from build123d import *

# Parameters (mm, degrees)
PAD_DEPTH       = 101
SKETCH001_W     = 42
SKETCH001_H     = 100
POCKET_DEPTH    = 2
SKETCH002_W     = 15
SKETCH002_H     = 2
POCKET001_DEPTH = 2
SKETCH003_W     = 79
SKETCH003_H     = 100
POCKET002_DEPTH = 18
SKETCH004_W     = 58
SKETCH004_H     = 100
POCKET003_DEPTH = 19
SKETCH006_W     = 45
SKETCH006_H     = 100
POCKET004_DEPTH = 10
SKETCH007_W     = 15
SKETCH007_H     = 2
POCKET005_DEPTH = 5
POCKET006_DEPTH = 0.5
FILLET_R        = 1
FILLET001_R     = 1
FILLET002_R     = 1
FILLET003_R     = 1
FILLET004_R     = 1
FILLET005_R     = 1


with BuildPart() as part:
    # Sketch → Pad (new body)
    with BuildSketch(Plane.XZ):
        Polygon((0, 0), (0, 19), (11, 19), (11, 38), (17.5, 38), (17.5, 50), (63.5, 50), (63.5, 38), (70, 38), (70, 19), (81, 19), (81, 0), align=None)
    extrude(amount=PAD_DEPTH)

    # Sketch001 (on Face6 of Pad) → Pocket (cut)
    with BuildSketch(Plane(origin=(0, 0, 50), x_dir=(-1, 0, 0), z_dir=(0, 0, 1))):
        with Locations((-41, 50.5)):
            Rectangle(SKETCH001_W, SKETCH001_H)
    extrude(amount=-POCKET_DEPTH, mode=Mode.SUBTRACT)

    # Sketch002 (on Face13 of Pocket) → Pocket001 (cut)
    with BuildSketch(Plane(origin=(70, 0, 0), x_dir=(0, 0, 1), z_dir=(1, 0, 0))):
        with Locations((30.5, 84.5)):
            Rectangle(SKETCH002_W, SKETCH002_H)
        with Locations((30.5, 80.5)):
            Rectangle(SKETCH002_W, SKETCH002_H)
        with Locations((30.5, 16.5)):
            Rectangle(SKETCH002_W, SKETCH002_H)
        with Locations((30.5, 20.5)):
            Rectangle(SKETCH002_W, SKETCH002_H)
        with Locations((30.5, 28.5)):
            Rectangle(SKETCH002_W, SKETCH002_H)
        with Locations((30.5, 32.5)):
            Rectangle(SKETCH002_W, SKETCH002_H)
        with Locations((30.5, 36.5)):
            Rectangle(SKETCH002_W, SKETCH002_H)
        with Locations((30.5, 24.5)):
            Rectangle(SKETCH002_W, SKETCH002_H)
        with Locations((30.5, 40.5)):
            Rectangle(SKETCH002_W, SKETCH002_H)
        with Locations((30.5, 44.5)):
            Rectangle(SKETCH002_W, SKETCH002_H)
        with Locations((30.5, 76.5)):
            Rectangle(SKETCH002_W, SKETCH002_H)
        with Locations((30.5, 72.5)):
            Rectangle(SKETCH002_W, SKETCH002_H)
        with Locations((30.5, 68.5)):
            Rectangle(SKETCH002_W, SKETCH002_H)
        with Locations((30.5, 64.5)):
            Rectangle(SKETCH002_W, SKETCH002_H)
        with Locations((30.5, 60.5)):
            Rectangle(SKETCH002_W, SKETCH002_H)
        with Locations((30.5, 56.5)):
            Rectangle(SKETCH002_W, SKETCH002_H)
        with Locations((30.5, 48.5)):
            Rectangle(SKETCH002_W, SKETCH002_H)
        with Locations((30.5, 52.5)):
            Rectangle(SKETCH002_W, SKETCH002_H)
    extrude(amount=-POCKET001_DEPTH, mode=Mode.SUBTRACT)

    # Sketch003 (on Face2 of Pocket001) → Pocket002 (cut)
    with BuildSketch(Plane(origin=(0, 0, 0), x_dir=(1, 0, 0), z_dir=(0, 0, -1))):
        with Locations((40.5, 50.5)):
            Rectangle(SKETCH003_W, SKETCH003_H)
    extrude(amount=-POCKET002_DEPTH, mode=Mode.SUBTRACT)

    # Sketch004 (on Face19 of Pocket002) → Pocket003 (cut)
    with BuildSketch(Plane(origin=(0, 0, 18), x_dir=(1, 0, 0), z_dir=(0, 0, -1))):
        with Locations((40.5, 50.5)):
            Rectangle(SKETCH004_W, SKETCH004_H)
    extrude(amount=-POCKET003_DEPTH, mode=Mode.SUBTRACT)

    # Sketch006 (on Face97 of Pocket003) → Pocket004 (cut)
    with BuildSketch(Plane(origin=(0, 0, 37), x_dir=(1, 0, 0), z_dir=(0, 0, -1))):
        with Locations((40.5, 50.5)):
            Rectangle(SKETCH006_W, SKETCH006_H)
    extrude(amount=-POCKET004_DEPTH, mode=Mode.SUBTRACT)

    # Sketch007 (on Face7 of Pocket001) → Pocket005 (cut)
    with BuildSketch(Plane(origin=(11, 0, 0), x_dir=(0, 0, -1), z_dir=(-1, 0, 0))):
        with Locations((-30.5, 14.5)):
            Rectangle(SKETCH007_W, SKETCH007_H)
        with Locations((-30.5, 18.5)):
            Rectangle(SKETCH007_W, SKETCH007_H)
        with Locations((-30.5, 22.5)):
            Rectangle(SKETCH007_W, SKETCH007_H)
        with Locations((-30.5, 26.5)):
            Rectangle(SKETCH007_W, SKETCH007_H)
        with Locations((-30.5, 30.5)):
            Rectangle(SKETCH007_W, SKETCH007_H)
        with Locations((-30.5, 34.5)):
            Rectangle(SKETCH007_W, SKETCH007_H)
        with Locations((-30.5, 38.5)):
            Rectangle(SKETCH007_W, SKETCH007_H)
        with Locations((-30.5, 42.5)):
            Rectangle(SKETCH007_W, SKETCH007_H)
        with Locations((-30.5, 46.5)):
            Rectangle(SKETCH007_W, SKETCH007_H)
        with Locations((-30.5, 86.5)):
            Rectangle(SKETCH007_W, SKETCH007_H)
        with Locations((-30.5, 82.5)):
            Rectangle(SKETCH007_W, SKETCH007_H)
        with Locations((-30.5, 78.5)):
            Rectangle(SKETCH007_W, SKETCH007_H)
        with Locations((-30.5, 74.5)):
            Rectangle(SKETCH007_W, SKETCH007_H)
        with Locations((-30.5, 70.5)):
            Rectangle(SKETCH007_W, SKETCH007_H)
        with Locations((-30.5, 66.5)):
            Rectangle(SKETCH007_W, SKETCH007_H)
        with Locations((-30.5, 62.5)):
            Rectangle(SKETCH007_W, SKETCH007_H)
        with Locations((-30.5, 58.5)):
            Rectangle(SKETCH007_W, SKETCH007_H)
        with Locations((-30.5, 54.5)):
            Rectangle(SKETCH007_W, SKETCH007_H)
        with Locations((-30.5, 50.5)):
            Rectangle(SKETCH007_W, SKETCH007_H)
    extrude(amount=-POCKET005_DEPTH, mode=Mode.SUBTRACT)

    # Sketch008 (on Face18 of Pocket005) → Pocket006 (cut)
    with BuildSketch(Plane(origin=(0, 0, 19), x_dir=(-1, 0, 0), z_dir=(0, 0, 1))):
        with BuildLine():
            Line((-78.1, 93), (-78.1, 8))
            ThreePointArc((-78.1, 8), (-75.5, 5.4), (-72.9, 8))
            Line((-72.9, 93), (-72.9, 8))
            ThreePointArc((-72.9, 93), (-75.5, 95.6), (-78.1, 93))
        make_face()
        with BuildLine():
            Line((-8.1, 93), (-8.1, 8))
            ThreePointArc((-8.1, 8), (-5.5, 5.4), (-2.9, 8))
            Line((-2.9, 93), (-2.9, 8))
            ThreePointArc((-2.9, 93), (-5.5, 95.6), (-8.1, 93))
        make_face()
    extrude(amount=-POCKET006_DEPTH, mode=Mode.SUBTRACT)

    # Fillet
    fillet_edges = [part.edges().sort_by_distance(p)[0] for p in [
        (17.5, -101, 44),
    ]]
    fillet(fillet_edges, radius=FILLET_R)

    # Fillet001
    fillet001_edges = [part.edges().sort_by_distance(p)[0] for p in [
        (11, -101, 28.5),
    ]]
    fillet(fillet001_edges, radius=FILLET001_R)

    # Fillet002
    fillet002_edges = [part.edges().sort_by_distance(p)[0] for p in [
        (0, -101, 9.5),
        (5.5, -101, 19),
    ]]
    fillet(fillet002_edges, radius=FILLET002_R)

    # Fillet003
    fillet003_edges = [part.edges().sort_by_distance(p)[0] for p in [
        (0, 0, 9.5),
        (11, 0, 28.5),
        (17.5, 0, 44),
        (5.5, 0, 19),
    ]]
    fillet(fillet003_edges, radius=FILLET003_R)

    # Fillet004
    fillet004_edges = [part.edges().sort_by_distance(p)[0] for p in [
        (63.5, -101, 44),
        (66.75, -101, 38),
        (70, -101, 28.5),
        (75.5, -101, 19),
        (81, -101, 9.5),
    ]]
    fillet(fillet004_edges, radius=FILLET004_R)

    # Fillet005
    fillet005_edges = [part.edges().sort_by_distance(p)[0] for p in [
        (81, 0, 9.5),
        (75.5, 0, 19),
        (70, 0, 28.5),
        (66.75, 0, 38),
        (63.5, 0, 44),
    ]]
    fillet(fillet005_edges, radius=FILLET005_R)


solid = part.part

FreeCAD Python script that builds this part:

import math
import FreeCAD as App
import Part
import Sketcher


def edges_at(feature, points):
    """Names of the edges that pass closest to the given points."""
    edges = feature.Shape.Edges
    near = lambda p: min(range(len(edges)), key=lambda i: edges[i].distToShape(Part.Vertex(*p))[0])
    return sorted({f"Edge{near(p) + 1}" for p in points})

doc = App.newDocument("Part")
params = doc.addObject("Spreadsheet::Sheet", "Params")
for row, (alias, value) in enumerate([
    ("sketch1_width", "81 mm"),
    ("sketch1_width2", "11 mm"),
    ("sketch1_width3", "46 mm"),
    ("sketch1_height", "19 mm"),
    ("sketch1_height2", "12 mm"),
    ("pad1_length", "101 mm"),
    ("sketch2_width", "42 mm"),
    ("sketch2_height", "100 mm"),
    ("pocket1_length", "2 mm"),
    ("sketch3_width", "2 mm"),
    ("sketch3_height", "15 mm"),
    ("pocket2_length", "2 mm"),
    ("sketch4_width", "79 mm"),
    ("sketch4_height", "100 mm"),
    ("pocket3_length", "18 mm"),
    ("sketch5_width", "58 mm"),
    ("sketch5_height", "100 mm"),
    ("pocket4_length", "19 mm"),
    ("sketch6_width", "45 mm"),
    ("sketch6_height", "100 mm"),
    ("pocket5_length", "10 mm"),
    ("sketch7_width", "2 mm"),
    ("sketch7_height", "15 mm"),
    ("pocket6_length", "5 mm"),
    ("sketch8_radius", "2.6 mm"),
    ("sketch8_height", "85 mm"),
    ("pocket7_length", "0.5 mm"),
    ("fillet_radius", "1 mm"),
    ("fillet2_radius", "1 mm"),
    ("fillet3_radius", "1 mm"),
    ("fillet4_radius", "1 mm"),
    ("fillet5_radius", "1 mm"),
    ("fillet6_radius", "1 mm"),
], start=1):
    params.set(f"A{row}", alias)
    params.set(f"B{row}", "=" + value)
    params.setAlias(f"B{row}", alias)

body = doc.addObject("PartDesign::Body", "Body")

sketch1 = body.newObject("Sketcher::SketchObject", "Sketch")
sketch1.AttachmentSupport = (doc.getObject("XZ_Plane"), [""])
sketch1.MapMode = "FlatFace"
sketch1.addGeometry([
    Part.LineSegment(App.Vector(0, 19, 0), App.Vector(0, 0, 0)),
    Part.LineSegment(App.Vector(0, 0, 0), App.Vector(81, 0, 0)),
    Part.LineSegment(App.Vector(81, 0, 0), App.Vector(81, 19, 0)),
    Part.LineSegment(App.Vector(81, 19, 0), App.Vector(70, 19, 0)),
    Part.LineSegment(App.Vector(70, 19, 0), App.Vector(70, 38, 0)),
    Part.LineSegment(App.Vector(70, 38, 0), App.Vector(64, 38, 0)),
    Part.LineSegment(App.Vector(64, 38, 0), App.Vector(64, 50, 0)),
    Part.LineSegment(App.Vector(64, 50, 0), App.Vector(18, 50, 0)),
    Part.LineSegment(App.Vector(18, 50, 0), App.Vector(18, 38, 0)),
    Part.LineSegment(App.Vector(18, 38, 0), App.Vector(11, 38, 0)),
    Part.LineSegment(App.Vector(11, 38, 0), App.Vector(11, 19, 0)),
    Part.LineSegment(App.Vector(11, 19, 0), App.Vector(0, 19, 0)),
], False)
sketch1.addConstraint([
    Sketcher.Constraint("Coincident", 0, 2, 1, 1),
    Sketcher.Constraint("Coincident", 1, 2, 2, 1),
    Sketcher.Constraint("Coincident", 2, 2, 3, 1),
    Sketcher.Constraint("Coincident", 3, 2, 4, 1),
    Sketcher.Constraint("Coincident", 4, 2, 5, 1),
    Sketcher.Constraint("Coincident", 5, 2, 6, 1),
    Sketcher.Constraint("Coincident", 6, 2, 7, 1),
    Sketcher.Constraint("Coincident", 7, 2, 8, 1),
    Sketcher.Constraint("Coincident", 8, 2, 9, 1),
    Sketcher.Constraint("Coincident", 9, 2, 10, 1),
    Sketcher.Constraint("Coincident", 10, 2, 11, 1),
    Sketcher.Constraint("Coincident", 11, 2, 0, 1),
    Sketcher.Constraint("Vertical", 0),
    Sketcher.Constraint("Horizontal", 1),
    Sketcher.Constraint("Vertical", 2),
    Sketcher.Constraint("Horizontal", 3),
    Sketcher.Constraint("Vertical", 4),
    Sketcher.Constraint("Horizontal", 5),
    Sketcher.Constraint("Vertical", 6),
    Sketcher.Constraint("Horizontal", 7),
    Sketcher.Constraint("Vertical", 8),
    Sketcher.Constraint("Horizontal", 9),
    Sketcher.Constraint("Vertical", 10),
    Sketcher.Constraint("Horizontal", 11),
    Sketcher.Constraint("Coincident", 0, 2, -1, 1),
    Sketcher.Constraint("Horizontal", 5, 2, 8, 2),
    Sketcher.Constraint("Horizontal", 3, 2, 10, 2),
    Sketcher.Constraint("Equal", 5, 9),
    Sketcher.Constraint("Equal", 3, 11),
    Sketcher.Constraint("Equal", 2, 4),
    Sketcher.Constraint("DistanceX", 1, 1, 1, 2, 81.0),
    Sketcher.Constraint("DistanceX", 3, 2, 3, 1, 11.0),
    Sketcher.Constraint("DistanceX", 7, 2, 7, 1, 46.0),
    Sketcher.Constraint("DistanceY", 0, 2, 0, 1, 19.0),
    Sketcher.Constraint("DistanceY", 6, 1, 6, 2, 12.0),
])
sketch1.setExpression("Constraints[30]", "Params.sketch1_width")
sketch1.setExpression("Constraints[31]", "Params.sketch1_width2")
sketch1.setExpression("Constraints[32]", "Params.sketch1_width3")
sketch1.setExpression("Constraints[33]", "Params.sketch1_height")
sketch1.setExpression("Constraints[34]", "Params.sketch1_height2")
pad1 = body.newObject("PartDesign::Pad", "Pad")
pad1.Profile = sketch1
pad1.setExpression("Length", "Params.pad1_length")

sketch2 = body.newObject("Sketcher::SketchObject", "Sketch001")
sketch2.AttachmentSupport = (doc.getObject("XY_Plane"), [""])
sketch2.MapMode = "FlatFace"
sketch2.AttachmentOffset = App.Placement(App.Vector(0, 0, 50), App.Rotation())
sketch2.addGeometry([
    Part.LineSegment(App.Vector(62, -100, 0), App.Vector(62, 0, 0)),
    Part.LineSegment(App.Vector(62, 0, 0), App.Vector(20, 0, 0)),
    Part.LineSegment(App.Vector(20, 0, 0), App.Vector(20, -100, 0)),
    Part.LineSegment(App.Vector(20, -100, 0), App.Vector(62, -100, 0)),
], False)
sketch2.addConstraint([
    Sketcher.Constraint("Coincident", 0, 2, 1, 1),
    Sketcher.Constraint("Coincident", 1, 2, 2, 1),
    Sketcher.Constraint("Coincident", 2, 2, 3, 1),
    Sketcher.Constraint("Coincident", 3, 2, 0, 1),
    Sketcher.Constraint("Vertical", 0),
    Sketcher.Constraint("Horizontal", 1),
    Sketcher.Constraint("Vertical", 2),
    Sketcher.Constraint("Horizontal", 3),
    Sketcher.Constraint("DistanceX", 1, 2, 1, 1, 42.0),
    Sketcher.Constraint("DistanceY", 0, 1, 0, 2, 100.0),
    Sketcher.Constraint("DistanceX", -1, 1, 0, 2, 62.0),
    Sketcher.Constraint("DistanceY", 0, 2, -1, 1, 0.5),
])
sketch2.setExpression("Constraints[8]", "Params.sketch2_width")
sketch2.setExpression("Constraints[9]", "Params.sketch2_height")
pocket1 = body.newObject("PartDesign::Pocket", "Pocket")
pocket1.Profile = sketch2
pocket1.setExpression("Length", "Params.pocket1_length")

sketch3 = body.newObject("Sketcher::SketchObject", "Sketch002")
sketch3.AttachmentSupport = (doc.getObject("YZ_Plane"), [""])
sketch3.MapMode = "FlatFace"
sketch3.AttachmentOffset = App.Placement(App.Vector(0, 0, 70), App.Rotation())
sketch3.addGeometry([
    Part.LineSegment(App.Vector(-85.5, 23, 0), App.Vector(-83.5, 23, 0)),
    Part.LineSegment(App.Vector(-83.5, 23, 0), App.Vector(-83.5, 38, 0)),
    Part.LineSegment(App.Vector(-83.5, 38, 0), App.Vector(-85.5, 38, 0)),
    Part.LineSegment(App.Vector(-85.5, 38, 0), App.Vector(-85.5, 23, 0)),
    Part.LineSegment(App.Vector(-81.5, 23, 0), App.Vector(-79.5, 23, 0)),
    Part.LineSegment(App.Vector(-79.5, 23, 0), App.Vector(-79.5, 38, 0)),
    Part.LineSegment(App.Vector(-79.5, 38, 0), App.Vector(-81.5, 38, 0)),
    Part.LineSegment(App.Vector(-81.5, 38, 0), App.Vector(-81.5, 23, 0)),
    Part.LineSegment(App.Vector(-17.5, 23, 0), App.Vector(-15.5, 23, 0)),
    Part.LineSegment(App.Vector(-15.5, 23, 0), App.Vector(-15.5, 38, 0)),
    Part.LineSegment(App.Vector(-15.5, 38, 0), App.Vector(-17.5, 38, 0)),
    Part.LineSegment(App.Vector(-17.5, 38, 0), App.Vector(-17.5, 23, 0)),
    Part.LineSegment(App.Vector(-21.5, 23, 0), App.Vector(-19.5, 23, 0)),
    Part.LineSegment(App.Vector(-19.5, 23, 0), App.Vector(-19.5, 38, 0)),
    Part.LineSegment(App.Vector(-19.5, 38, 0), App.Vector(-21.5, 38, 0)),
    Part.LineSegment(App.Vector(-21.5, 38, 0), App.Vector(-21.5, 23, 0)),
    Part.LineSegment(App.Vector(-29.5, 23, 0), App.Vector(-27.5, 23, 0)),
    Part.LineSegment(App.Vector(-27.5, 23, 0), App.Vector(-27.5, 38, 0)),
    Part.LineSegment(App.Vector(-27.5, 38, 0), App.Vector(-29.5, 38, 0)),
    Part.LineSegment(App.Vector(-29.5, 38, 0), App.Vector(-29.5, 23, 0)),
    Part.LineSegment(App.Vector(-33.5, 23, 0), App.Vector(-31.5, 23, 0)),
    Part.LineSegment(App.Vector(-31.5, 23, 0), App.Vector(-31.5, 38, 0)),
    Part.LineSegment(App.Vector(-31.5, 38, 0), App.Vector(-33.5, 38, 0)),
    Part.LineSegment(App.Vector(-33.5, 38, 0), App.Vector(-33.5, 23, 0)),
    Part.LineSegment(App.Vector(-37.5, 23, 0), App.Vector(-35.5, 23, 0)),
    Part.LineSegment(App.Vector(-35.5, 23, 0), App.Vector(-35.5, 38, 0)),
    Part.LineSegment(App.Vector(-35.5, 38, 0), App.Vector(-37.5, 38, 0)),
    Part.LineSegment(App.Vector(-37.5, 38, 0), App.Vector(-37.5, 23, 0)),
    Part.LineSegment(App.Vector(-25.5, 23, 0), App.Vector(-23.5, 23, 0)),
    Part.LineSegment(App.Vector(-23.5, 23, 0), App.Vector(-23.5, 38, 0)),
    Part.LineSegment(App.Vector(-23.5, 38, 0), App.Vector(-25.5, 38, 0)),
    Part.LineSegment(App.Vector(-25.5, 38, 0), App.Vector(-25.5, 23, 0)),
    Part.LineSegment(App.Vector(-41.5, 23, 0), App.Vector(-39.5, 23, 0)),
    Part.LineSegment(App.Vector(-39.5, 23, 0), App.Vector(-39.5, 38, 0)),
    Part.LineSegment(App.Vector(-39.5, 38, 0), App.Vector(-41.5, 38, 0)),
    Part.LineSegment(App.Vector(-41.5, 38, 0), App.Vector(-41.5, 23, 0)),
    Part.LineSegment(App.Vector(-45.5, 23, 0), App.Vector(-43.5, 23, 0)),
    Part.LineSegment(App.Vector(-43.5, 23, 0), App.Vector(-43.5, 38, 0)),
    Part.LineSegment(App.Vector(-43.5, 38, 0), App.Vector(-45.5, 38, 0)),
    Part.LineSegment(App.Vector(-45.5, 38, 0), App.Vector(-45.5, 23, 0)),
    Part.LineSegment(App.Vector(-77.5, 23, 0), App.Vector(-75.5, 23, 0)),
    Part.LineSegment(App.Vector(-75.5, 23, 0), App.Vector(-75.5, 38, 0)),
    Part.LineSegment(App.Vector(-75.5, 38, 0), App.Vector(-77.5, 38, 0)),
    Part.LineSegment(App.Vector(-77.5, 38, 0), App.Vector(-77.5, 23, 0)),
    Part.LineSegment(App.Vector(-73.5, 23, 0), App.Vector(-71.5, 23, 0)),
    Part.LineSegment(App.Vector(-71.5, 23, 0), App.Vector(-71.5, 38, 0)),
    Part.LineSegment(App.Vector(-71.5, 38, 0), App.Vector(-73.5, 38, 0)),
    Part.LineSegment(App.Vector(-73.5, 38, 0), App.Vector(-73.5, 23, 0)),
    Part.LineSegment(App.Vector(-69.5, 23, 0), App.Vector(-67.5, 23, 0)),
    Part.LineSegment(App.Vector(-67.5, 23, 0), App.Vector(-67.5, 38, 0)),
    Part.LineSegment(App.Vector(-67.5, 38, 0), App.Vector(-69.5, 38, 0)),
    Part.LineSegment(App.Vector(-69.5, 38, 0), App.Vector(-69.5, 23, 0)),
    Part.LineSegment(App.Vector(-65.5, 23, 0), App.Vector(-63.5, 23, 0)),
    Part.LineSegment(App.Vector(-63.5, 23, 0), App.Vector(-63.5, 38, 0)),
    Part.LineSegment(App.Vector(-63.5, 38, 0), App.Vector(-65.5, 38, 0)),
    Part.LineSegment(App.Vector(-65.5, 38, 0), App.Vector(-65.5, 23, 0)),
    Part.LineSegment(App.Vector(-61.5, 23, 0), App.Vector(-59.5, 23, 0)),
    Part.LineSegment(App.Vector(-59.5, 23, 0), App.Vector(-59.5, 38, 0)),
    Part.LineSegment(App.Vector(-59.5, 38, 0), App.Vector(-61.5, 38, 0)),
    Part.LineSegment(App.Vector(-61.5, 38, 0), App.Vector(-61.5, 23, 0)),
    Part.LineSegment(App.Vector(-57.5, 23, 0), App.Vector(-55.5, 23, 0)),
    Part.LineSegment(App.Vector(-55.5, 23, 0), App.Vector(-55.5, 38, 0)),
    Part.LineSegment(App.Vector(-55.5, 38, 0), App.Vector(-57.5, 38, 0)),
    Part.LineSegment(App.Vector(-57.5, 38, 0), App.Vector(-57.5, 23, 0)),
    Part.LineSegment(App.Vector(-49.5, 23, 0), App.Vector(-47.5, 23, 0)),
    Part.LineSegment(App.Vector(-47.5, 23, 0), App.Vector(-47.5, 38, 0)),
    Part.LineSegment(App.Vector(-47.5, 38, 0), App.Vector(-49.5, 38, 0)),
    Part.LineSegment(App.Vector(-49.5, 38, 0), App.Vector(-49.5, 23, 0)),
    Part.LineSegment(App.Vector(-53.5, 23, 0), App.Vector(-51.5, 23, 0)),
    Part.LineSegment(App.Vector(-51.5, 23, 0), App.Vector(-51.5, 38, 0)),
    Part.LineSegment(App.Vector(-51.5, 38, 0), App.Vector(-53.5, 38, 0)),
    Part.LineSegment(App.Vector(-53.5, 38, 0), App.Vector(-53.5, 23, 0)),
], False)
sketch3.addConstraint([
    Sketcher.Constraint("Coincident", 0, 2, 1, 1),
    Sketcher.Constraint("Coincident", 1, 2, 2, 1),
    Sketcher.Constraint("Coincident", 2, 2, 3, 1),
    Sketcher.Constraint("Coincident", 3, 2, 0, 1),
    Sketcher.Constraint("Coincident", 4, 2, 5, 1),
    Sketcher.Constraint("Coincident", 5, 2, 6, 1),
    Sketcher.Constraint("Coincident", 6, 2, 7, 1),
    Sketcher.Constraint("Coincident", 7, 2, 4, 1),
    Sketcher.Constraint("Coincident", 8, 2, 9, 1),
    Sketcher.Constraint("Coincident", 9, 2, 10, 1),
    Sketcher.Constraint("Coincident", 10, 2, 11, 1),
    Sketcher.Constraint("Coincident", 11, 2, 8, 1),
    Sketcher.Constraint("Coincident", 12, 2, 13, 1),
    Sketcher.Constraint("Coincident", 13, 2, 14, 1),
    Sketcher.Constraint("Coincident", 14, 2, 15, 1),
    Sketcher.Constraint("Coincident", 15, 2, 12, 1),
    Sketcher.Constraint("Coincident", 16, 2, 17, 1),
    Sketcher.Constraint("Coincident", 17, 2, 18, 1),
    Sketcher.Constraint("Coincident", 18, 2, 19, 1),
    Sketcher.Constraint("Coincident", 19, 2, 16, 1),
    Sketcher.Constraint("Coincident", 20, 2, 21, 1),
    Sketcher.Constraint("Coincident", 21, 2, 22, 1),
    Sketcher.Constraint("Coincident", 22, 2, 23, 1),
    Sketcher.Constraint("Coincident", 23, 2, 20, 1),
    Sketcher.Constraint("Coincident", 24, 2, 25, 1),
    Sketcher.Constraint("Coincident", 25, 2, 26, 1),
    Sketcher.Constraint("Coincident", 26, 2, 27, 1),
    Sketcher.Constraint("Coincident", 27, 2, 24, 1),
    Sketcher.Constraint("Coincident", 28, 2, 29, 1),
    Sketcher.Constraint("Coincident", 29, 2, 30, 1),
    Sketcher.Constraint("Coincident", 30, 2, 31, 1),
    Sketcher.Constraint("Coincident", 31, 2, 28, 1),
    Sketcher.Constraint("Coincident", 32, 2, 33, 1),
    Sketcher.Constraint("Coincident", 33, 2, 34, 1),
    Sketcher.Constraint("Coincident", 34, 2, 35, 1),
    Sketcher.Constraint("Coincident", 35, 2, 32, 1),
    Sketcher.Constraint("Coincident", 36, 2, 37, 1),
    Sketcher.Constraint("Coincident", 37, 2, 38, 1),
    Sketcher.Constraint("Coincident", 38, 2, 39, 1),
    Sketcher.Constraint("Coincident", 39, 2, 36, 1),
    Sketcher.Constraint("Coincident", 40, 2, 41, 1),
    Sketcher.Constraint("Coincident", 41, 2, 42, 1),
    Sketcher.Constraint("Coincident", 42, 2, 43, 1),
    Sketcher.Constraint("Coincident", 43, 2, 40, 1),
    Sketcher.Constraint("Coincident", 44, 2, 45, 1),
    Sketcher.Constraint("Coincident", 45, 2, 46, 1),
    Sketcher.Constraint("Coincident", 46, 2, 47, 1),
    Sketcher.Constraint("Coincident", 47, 2, 44, 1),
    Sketcher.Constraint("Coincident", 48, 2, 49, 1),
    Sketcher.Constraint("Coincident", 49, 2, 50, 1),
    Sketcher.Constraint("Coincident", 50, 2, 51, 1),
    Sketcher.Constraint("Coincident", 51, 2, 48, 1),
    Sketcher.Constraint("Coincident", 52, 2, 53, 1),
    Sketcher.Constraint("Coincident", 53, 2, 54, 1),
    Sketcher.Constraint("Coincident", 54, 2, 55, 1),
    Sketcher.Constraint("Coincident", 55, 2, 52, 1),
    Sketcher.Constraint("Coincident", 56, 2, 57, 1),
    Sketcher.Constraint("Coincident", 57, 2, 58, 1),
    Sketcher.Constraint("Coincident", 58, 2, 59, 1),
    Sketcher.Constraint("Coincident", 59, 2, 56, 1),
    Sketcher.Constraint("Coincident", 60, 2, 61, 1),
    Sketcher.Constraint("Coincident", 61, 2, 62, 1),
    Sketcher.Constraint("Coincident", 62, 2, 63, 1),
    Sketcher.Constraint("Coincident", 63, 2, 60, 1),
    Sketcher.Constraint("Coincident", 64, 2, 65, 1),
    Sketcher.Constraint("Coincident", 65, 2, 66, 1),
    Sketcher.Constraint("Coincident", 66, 2, 67, 1),
    Sketcher.Constraint("Coincident", 67, 2, 64, 1),
    Sketcher.Constraint("Coincident", 68, 2, 69, 1),
    Sketcher.Constraint("Coincident", 69, 2, 70, 1),
    Sketcher.Constraint("Coincident", 70, 2, 71, 1),
    Sketcher.Constraint("Coincident", 71, 2, 68, 1),
    Sketcher.Constraint("Horizontal", 0),
    Sketcher.Constraint("Vertical", 1),
    Sketcher.Constraint("Horizontal", 2),
    Sketcher.Constraint("Vertical", 3),
    Sketcher.Constraint("Horizontal", 4),
    Sketcher.Constraint("Vertical", 5),
    Sketcher.Constraint("Horizontal", 6),
    Sketcher.Constraint("Vertical", 7),
    Sketcher.Constraint("Horizontal", 8),
    Sketcher.Constraint("Vertical", 9),
    Sketcher.Constraint("Horizontal", 10),
    Sketcher.Constraint("Vertical", 11),
    Sketcher.Constraint("Horizontal", 12),
    Sketcher.Constraint("Vertical", 13),
    Sketcher.Constraint("Horizontal", 14),
    Sketcher.Constraint("Vertical", 15),
    Sketcher.Constraint("Horizontal", 16),
    Sketcher.Constraint("Vertical", 17),
    Sketcher.Constraint("Horizontal", 18),
    Sketcher.Constraint("Vertical", 19),
    Sketcher.Constraint("Horizontal", 20),
    Sketcher.Constraint("Vertical", 21),
    Sketcher.Constraint("Horizontal", 22),
    Sketcher.Constraint("Vertical", 23),
    Sketcher.Constraint("Horizontal", 24),
    Sketcher.Constraint("Vertical", 25),
    Sketcher.Constraint("Horizontal", 26),
    Sketcher.Constraint("Vertical", 27),
    Sketcher.Constraint("Horizontal", 28),
    Sketcher.Constraint("Vertical", 29),
    Sketcher.Constraint("Horizontal", 30),
    Sketcher.Constraint("Vertical", 31),
    Sketcher.Constraint("Horizontal", 32),
    Sketcher.Constraint("Vertical", 33),
    Sketcher.Constraint("Horizontal", 34),
    Sketcher.Constraint("Vertical", 35),
    Sketcher.Constraint("Horizontal", 36),
    Sketcher.Constraint("Vertical", 37),
    Sketcher.Constraint("Horizontal", 38),
    Sketcher.Constraint("Vertical", 39),
    Sketcher.Constraint("Horizontal", 40),
    Sketcher.Constraint("Vertical", 41),
    Sketcher.Constraint("Horizontal", 42),
    Sketcher.Constraint("Vertical", 43),
    Sketcher.Constraint("Horizontal", 44),
    Sketcher.Constraint("Vertical", 45),
    Sketcher.Constraint("Horizontal", 46),
    Sketcher.Constraint("Vertical", 47),
    Sketcher.Constraint("Horizontal", 48),
    Sketcher.Constraint("Vertical", 49),
    Sketcher.Constraint("Horizontal", 50),
    Sketcher.Constraint("Vertical", 51),
    Sketcher.Constraint("Horizontal", 52),
    Sketcher.Constraint("Vertical", 53),
    Sketcher.Constraint("Horizontal", 54),
    Sketcher.Constraint("Vertical", 55),
    Sketcher.Constraint("Horizontal", 56),
    Sketcher.Constraint("Vertical", 57),
    Sketcher.Constraint("Horizontal", 58),
    Sketcher.Constraint("Vertical", 59),
    Sketcher.Constraint("Horizontal", 60),
    Sketcher.Constraint("Vertical", 61),
    Sketcher.Constraint("Horizontal", 62),
    Sketcher.Constraint("Vertical", 63),
    Sketcher.Constraint("Horizontal", 64),
    Sketcher.Constraint("Vertical", 65),
    Sketcher.Constraint("Horizontal", 66),
    Sketcher.Constraint("Vertical", 67),
    Sketcher.Constraint("Horizontal", 68),
    Sketcher.Constraint("Vertical", 69),
    Sketcher.Constraint("Horizontal", 70),
    Sketcher.Constraint("Vertical", 71),
    Sketcher.Constraint("Horizontal", 3, 2, 4, 2),
    Sketcher.Constraint("Horizontal", 2, 2, 5, 2),
    Sketcher.Constraint("Horizontal", 7, 2, 8, 2),
    Sketcher.Constraint("Horizontal", 6, 2, 9, 2),
    Sketcher.Constraint("Horizontal", 11, 2, 12, 2),
    Sketcher.Constraint("Horizontal", 10, 2, 13, 2),
    Sketcher.Constraint("Horizontal", 15, 2, 16, 2),
    Sketcher.Constraint("Horizontal", 14, 2, 17, 2),
    Sketcher.Constraint("Horizontal", 19, 2, 20, 2),
    Sketcher.Constraint("Horizontal", 18, 2, 21, 2),
    Sketcher.Constraint("Horizontal", 23, 2, 24, 2),
    Sketcher.Constraint("Horizontal", 22, 2, 25, 2),
    Sketcher.Constraint("Horizontal", 27, 2, 28, 2),
    Sketcher.Constraint("Horizontal", 26, 2, 29, 2),
    Sketcher.Constraint("Horizontal", 31, 2, 32, 2),
    Sketcher.Constraint("Horizontal", 30, 2, 33, 2),
    Sketcher.Constraint("Horizontal", 35, 2, 36, 2),
    Sketcher.Constraint("Horizontal", 34, 2, 37, 2),
    Sketcher.Constraint("Horizontal", 39, 2, 40, 2),
    Sketcher.Constraint("Horizontal", 38, 2, 41, 2),
    Sketcher.Constraint("Horizontal", 43, 2, 44, 2),
    Sketcher.Constraint("Horizontal", 42, 2, 45, 2),
    Sketcher.Constraint("Horizontal", 47, 2, 48, 2),
    Sketcher.Constraint("Horizontal", 46, 2, 49, 2),
    Sketcher.Constraint("Horizontal", 51, 2, 52, 2),
    Sketcher.Constraint("Horizontal", 50, 2, 53, 2),
    Sketcher.Constraint("Horizontal", 55, 2, 56, 2),
    Sketcher.Constraint("Horizontal", 54, 2, 57, 2),
    Sketcher.Constraint("Horizontal", 59, 2, 60, 2),
    Sketcher.Constraint("Horizontal", 58, 2, 61, 2),
    Sketcher.Constraint("Horizontal", 63, 2, 64, 2),
    Sketcher.Constraint("Horizontal", 62, 2, 65, 2),
    Sketcher.Constraint("Horizontal", 67, 2, 68, 2),
    Sketcher.Constraint("Horizontal", 66, 2, 69, 2),
    Sketcher.Constraint("Equal", 2, 4),
    Sketcher.Constraint("Equal", 6, 8),
    Sketcher.Constraint("Equal", 10, 12),
    Sketcher.Constraint("Equal", 14, 16),
    Sketcher.Constraint("Equal", 18, 20),
    Sketcher.Constraint("Equal", 22, 24),
    Sketcher.Constraint("Equal", 26, 28),
    Sketcher.Constraint("Equal", 30, 32),
    Sketcher.Constraint("Equal", 34, 36),
    Sketcher.Constraint("Equal", 38, 40),
    Sketcher.Constraint("Equal", 42, 44),
    Sketcher.Constraint("Equal", 46, 48),
    Sketcher.Constraint("Equal", 50, 52),
    Sketcher.Constraint("Equal", 54, 56),
    Sketcher.Constraint("Equal", 58, 60),
    Sketcher.Constraint("Equal", 62, 64),
    Sketcher.Constraint("Equal", 66, 68),
    Sketcher.Constraint("DistanceX", 0, 1, 0, 2, 2.0),
    Sketcher.Constraint("DistanceY", 1, 1, 1, 2, 15.0),
    Sketcher.Constraint("DistanceY", -1, 1, 0, 2, 23.0),
    Sketcher.Constraint("DistanceX", 0, 2, -1, 1, 83.5),
    Sketcher.Constraint("DistanceX", 4, 2, -1, 1, 79.5),
    Sketcher.Constraint("DistanceX", 8, 2, -1, 1, 15.5),
    Sketcher.Constraint("DistanceX", 12, 2, -1, 1, 19.5),
    Sketcher.Constraint("DistanceX", 16, 2, -1, 1, 27.5),
    Sketcher.Constraint("DistanceX", 20, 2, -1, 1, 31.5),
    Sketcher.Constraint("DistanceX", 24, 2, -1, 1, 35.5),
    Sketcher.Constraint("DistanceX", 28, 2, -1, 1, 23.5),
    Sketcher.Constraint("DistanceX", 32, 2, -1, 1, 39.5),
    Sketcher.Constraint("DistanceX", 36, 2, -1, 1, 43.5),
    Sketcher.Constraint("DistanceX", 40, 2, -1, 1, 75.5),
    Sketcher.Constraint("DistanceX", 44, 2, -1, 1, 71.5),
    Sketcher.Constraint("DistanceX", 48, 2, -1, 1, 67.5),
    Sketcher.Constraint("DistanceX", 52, 2, -1, 1, 63.5),
    Sketcher.Constraint("DistanceX", 56, 2, -1, 1, 59.5),
    Sketcher.Constraint("DistanceX", 60, 2, -1, 1, 55.5),
    Sketcher.Constraint("DistanceX", 64, 2, -1, 1, 47.5),
    Sketcher.Constraint("DistanceX", 68, 2, -1, 1, 51.5),
])
sketch3.setExpression("Constraints[195]", "Params.sketch3_width")
sketch3.setExpression("Constraints[196]", "Params.sketch3_height")
pocket2 = body.newObject("PartDesign::Pocket", "Pocket001")
pocket2.Profile = sketch3
pocket2.setExpression("Length", "Params.pocket2_length")

sketch4 = body.newObject("Sketcher::SketchObject", "Sketch003")
sketch4.AttachmentSupport = (doc.getObject("XY_Plane"), [""])
sketch4.MapMode = "FlatFace"
sketch4.addGeometry([
    Part.LineSegment(App.Vector(1, -100, 0), App.Vector(1, 0, 0)),
    Part.LineSegment(App.Vector(1, 0, 0), App.Vector(80, 0, 0)),
    Part.LineSegment(App.Vector(80, 0, 0), App.Vector(80, -100, 0)),
    Part.LineSegment(App.Vector(80, -100, 0), App.Vector(1, -100, 0)),
], False)
sketch4.addConstraint([
    Sketcher.Constraint("Coincident", 0, 2, 1, 1),
    Sketcher.Constraint("Coincident", 1, 2, 2, 1),
    Sketcher.Constraint("Coincident", 2, 2, 3, 1),
    Sketcher.Constraint("Coincident", 3, 2, 0, 1),
    Sketcher.Constraint("Vertical", 0),
    Sketcher.Constraint("Horizontal", 1),
    Sketcher.Constraint("Vertical", 2),
    Sketcher.Constraint("Horizontal", 3),
    Sketcher.Constraint("DistanceX", 1, 1, 1, 2, 79.0),
    Sketcher.Constraint("DistanceY", 0, 1, 0, 2, 100.0),
    Sketcher.Constraint("DistanceX", -1, 1, 0, 2, 1.0),
    Sketcher.Constraint("DistanceY", 0, 2, -1, 1, 0.5),
])
sketch4.setExpression("Constraints[8]", "Params.sketch4_width")
sketch4.setExpression("Constraints[9]", "Params.sketch4_height")
pocket3 = body.newObject("PartDesign::Pocket", "Pocket002")
pocket3.Profile = sketch4
pocket3.setExpression("Length", "Params.pocket3_length")
pocket3.Reversed = True

sketch5 = body.newObject("Sketcher::SketchObject", "Sketch004")
sketch5.AttachmentSupport = (doc.getObject("XY_Plane"), [""])
sketch5.MapMode = "FlatFace"
sketch5.AttachmentOffset = App.Placement(App.Vector(0, 0, 18), App.Rotation())
sketch5.addGeometry([
    Part.LineSegment(App.Vector(12, -100, 0), App.Vector(12, 0, 0)),
    Part.LineSegment(App.Vector(12, 0, 0), App.Vector(70, 0, 0)),
    Part.LineSegment(App.Vector(70, 0, 0), App.Vector(70, -100, 0)),
    Part.LineSegment(App.Vector(70, -100, 0), App.Vector(12, -100, 0)),
], False)
sketch5.addConstraint([
    Sketcher.Constraint("Coincident", 0, 2, 1, 1),
    Sketcher.Constraint("Coincident", 1, 2, 2, 1),
    Sketcher.Constraint("Coincident", 2, 2, 3, 1),
    Sketcher.Constraint("Coincident", 3, 2, 0, 1),
    Sketcher.Constraint("Vertical", 0),
    Sketcher.Constraint("Horizontal", 1),
    Sketcher.Constraint("Vertical", 2),
    Sketcher.Constraint("Horizontal", 3),
    Sketcher.Constraint("DistanceX", 1, 1, 1, 2, 58.0),
    Sketcher.Constraint("DistanceY", 0, 1, 0, 2, 100.0),
    Sketcher.Constraint("DistanceX", -1, 1, 0, 2, 11.5),
    Sketcher.Constraint("DistanceY", 0, 2, -1, 1, 0.5),
])
sketch5.setExpression("Constraints[8]", "Params.sketch5_width")
sketch5.setExpression("Constraints[9]", "Params.sketch5_height")
pocket4 = body.newObject("PartDesign::Pocket", "Pocket003")
pocket4.Profile = sketch5
pocket4.setExpression("Length", "Params.pocket4_length")
pocket4.Reversed = True

sketch6 = body.newObject("Sketcher::SketchObject", "Sketch005")
sketch6.AttachmentSupport = (doc.getObject("XY_Plane"), [""])
sketch6.MapMode = "FlatFace"
sketch6.AttachmentOffset = App.Placement(App.Vector(0, 0, 37), App.Rotation())
sketch6.addGeometry([
    Part.LineSegment(App.Vector(18, -100, 0), App.Vector(18, 0, 0)),
    Part.LineSegment(App.Vector(18, 0, 0), App.Vector(63, 0, 0)),
    Part.LineSegment(App.Vector(63, 0, 0), App.Vector(63, -100, 0)),
    Part.LineSegment(App.Vector(63, -100, 0), App.Vector(18, -100, 0)),
], False)
sketch6.addConstraint([
    Sketcher.Constraint("Coincident", 0, 2, 1, 1),
    Sketcher.Constraint("Coincident", 1, 2, 2, 1),
    Sketcher.Constraint("Coincident", 2, 2, 3, 1),
    Sketcher.Constraint("Coincident", 3, 2, 0, 1),
    Sketcher.Constraint("Vertical", 0),
    Sketcher.Constraint("Horizontal", 1),
    Sketcher.Constraint("Vertical", 2),
    Sketcher.Constraint("Horizontal", 3),
    Sketcher.Constraint("DistanceX", 1, 1, 1, 2, 45.0),
    Sketcher.Constraint("DistanceY", 0, 1, 0, 2, 100.0),
    Sketcher.Constraint("DistanceX", -1, 1, 0, 2, 18.0),
    Sketcher.Constraint("DistanceY", 0, 2, -1, 1, 0.5),
])
sketch6.setExpression("Constraints[8]", "Params.sketch6_width")
sketch6.setExpression("Constraints[9]", "Params.sketch6_height")
pocket5 = body.newObject("PartDesign::Pocket", "Pocket004")
pocket5.Profile = sketch6
pocket5.setExpression("Length", "Params.pocket5_length")
pocket5.Reversed = True

sketch7 = body.newObject("Sketcher::SketchObject", "Sketch006")
sketch7.AttachmentSupport = (doc.getObject("YZ_Plane"), [""])
sketch7.MapMode = "FlatFace"
sketch7.AttachmentOffset = App.Placement(App.Vector(0, 0, 11), App.Rotation())
sketch7.addGeometry([
    Part.LineSegment(App.Vector(-15.5, 38, 0), App.Vector(-13.5, 38, 0)),
    Part.LineSegment(App.Vector(-13.5, 38, 0), App.Vector(-13.5, 23, 0)),
    Part.LineSegment(App.Vector(-13.5, 23, 0), App.Vector(-15.5, 23, 0)),
    Part.LineSegment(App.Vector(-15.5, 23, 0), App.Vector(-15.5, 38, 0)),
    Part.LineSegment(App.Vector(-19.5, 38, 0), App.Vector(-17.5, 38, 0)),
    Part.LineSegment(App.Vector(-17.5, 38, 0), App.Vector(-17.5, 23, 0)),
    Part.LineSegment(App.Vector(-17.5, 23, 0), App.Vector(-19.5, 23, 0)),
    Part.LineSegment(App.Vector(-19.5, 23, 0), App.Vector(-19.5, 38, 0)),
    Part.LineSegment(App.Vector(-23.5, 38, 0), App.Vector(-21.5, 38, 0)),
    Part.LineSegment(App.Vector(-21.5, 38, 0), App.Vector(-21.5, 23, 0)),
    Part.LineSegment(App.Vector(-21.5, 23, 0), App.Vector(-23.5, 23, 0)),
    Part.LineSegment(App.Vector(-23.5, 23, 0), App.Vector(-23.5, 38, 0)),
    Part.LineSegment(App.Vector(-27.5, 38, 0), App.Vector(-25.5, 38, 0)),
    Part.LineSegment(App.Vector(-25.5, 38, 0), App.Vector(-25.5, 23, 0)),
    Part.LineSegment(App.Vector(-25.5, 23, 0), App.Vector(-27.5, 23, 0)),
    Part.LineSegment(App.Vector(-27.5, 23, 0), App.Vector(-27.5, 38, 0)),
    Part.LineSegment(App.Vector(-31.5, 38, 0), App.Vector(-29.5, 38, 0)),
    Part.LineSegment(App.Vector(-29.5, 38, 0), App.Vector(-29.5, 23, 0)),
    Part.LineSegment(App.Vector(-29.5, 23, 0), App.Vector(-31.5, 23, 0)),
    Part.LineSegment(App.Vector(-31.5, 23, 0), App.Vector(-31.5, 38, 0)),
    Part.LineSegment(App.Vector(-35.5, 38, 0), App.Vector(-33.5, 38, 0)),
    Part.LineSegment(App.Vector(-33.5, 38, 0), App.Vector(-33.5, 23, 0)),
    Part.LineSegment(App.Vector(-33.5, 23, 0), App.Vector(-35.5, 23, 0)),
    Part.LineSegment(App.Vector(-35.5, 23, 0), App.Vector(-35.5, 38, 0)),
    Part.LineSegment(App.Vector(-39.5, 38, 0), App.Vector(-37.5, 38, 0)),
    Part.LineSegment(App.Vector(-37.5, 38, 0), App.Vector(-37.5, 23, 0)),
    Part.LineSegment(App.Vector(-37.5, 23, 0), App.Vector(-39.5, 23, 0)),
    Part.LineSegment(App.Vector(-39.5, 23, 0), App.Vector(-39.5, 38, 0)),
    Part.LineSegment(App.Vector(-43.5, 38, 0), App.Vector(-41.5, 38, 0)),
    Part.LineSegment(App.Vector(-41.5, 38, 0), App.Vector(-41.5, 23, 0)),
    Part.LineSegment(App.Vector(-41.5, 23, 0), App.Vector(-43.5, 23, 0)),
    Part.LineSegment(App.Vector(-43.5, 23, 0), App.Vector(-43.5, 38, 0)),
    Part.LineSegment(App.Vector(-47.5, 38, 0), App.Vector(-45.5, 38, 0)),
    Part.LineSegment(App.Vector(-45.5, 38, 0), App.Vector(-45.5, 23, 0)),
    Part.LineSegment(App.Vector(-45.5, 23, 0), App.Vector(-47.5, 23, 0)),
    Part.LineSegment(App.Vector(-47.5, 23, 0), App.Vector(-47.5, 38, 0)),
    Part.LineSegment(App.Vector(-87.5, 38, 0), App.Vector(-85.5, 38, 0)),
    Part.LineSegment(App.Vector(-85.5, 38, 0), App.Vector(-85.5, 23, 0)),
    Part.LineSegment(App.Vector(-85.5, 23, 0), App.Vector(-87.5, 23, 0)),
    Part.LineSegment(App.Vector(-87.5, 23, 0), App.Vector(-87.5, 38, 0)),
    Part.LineSegment(App.Vector(-83.5, 38, 0), App.Vector(-81.5, 38, 0)),
    Part.LineSegment(App.Vector(-81.5, 38, 0), App.Vector(-81.5, 23, 0)),
    Part.LineSegment(App.Vector(-81.5, 23, 0), App.Vector(-83.5, 23, 0)),
    Part.LineSegment(App.Vector(-83.5, 23, 0), App.Vector(-83.5, 38, 0)),
    Part.LineSegment(App.Vector(-79.5, 38, 0), App.Vector(-77.5, 38, 0)),
    Part.LineSegment(App.Vector(-77.5, 38, 0), App.Vector(-77.5, 23, 0)),
    Part.LineSegment(App.Vector(-77.5, 23, 0), App.Vector(-79.5, 23, 0)),
    Part.LineSegment(App.Vector(-79.5, 23, 0), App.Vector(-79.5, 38, 0)),
    Part.LineSegment(App.Vector(-75.5, 38, 0), App.Vector(-73.5, 38, 0)),
    Part.LineSegment(App.Vector(-73.5, 38, 0), App.Vector(-73.5, 23, 0)),
    Part.LineSegment(App.Vector(-73.5, 23, 0), App.Vector(-75.5, 23, 0)),
    Part.LineSegment(App.Vector(-75.5, 23, 0), App.Vector(-75.5, 38, 0)),
    Part.LineSegment(App.Vector(-71.5, 38, 0), App.Vector(-69.5, 38, 0)),
    Part.LineSegment(App.Vector(-69.5, 38, 0), App.Vector(-69.5, 23, 0)),
    Part.LineSegment(App.Vector(-69.5, 23, 0), App.Vector(-71.5, 23, 0)),
    Part.LineSegment(App.Vector(-71.5, 23, 0), App.Vector(-71.5, 38, 0)),
    Part.LineSegment(App.Vector(-67.5, 38, 0), App.Vector(-65.5, 38, 0)),
    Part.LineSegment(App.Vector(-65.5, 38, 0), App.Vector(-65.5, 23, 0)),
    Part.LineSegment(App.Vector(-65.5, 23, 0), App.Vector(-67.5, 23, 0)),
    Part.LineSegment(App.Vector(-67.5, 23, 0), App.Vector(-67.5, 38, 0)),
    Part.LineSegment(App.Vector(-63.5, 38, 0), App.Vector(-61.5, 38, 0)),
    Part.LineSegment(App.Vector(-61.5, 38, 0), App.Vector(-61.5, 23, 0)),
    Part.LineSegment(App.Vector(-61.5, 23, 0), App.Vector(-63.5, 23, 0)),
    Part.LineSegment(App.Vector(-63.5, 23, 0), App.Vector(-63.5, 38, 0)),
    Part.LineSegment(App.Vector(-59.5, 38, 0), App.Vector(-57.5, 38, 0)),
    Part.LineSegment(App.Vector(-57.5, 38, 0), App.Vector(-57.5, 23, 0)),
    Part.LineSegment(App.Vector(-57.5, 23, 0), App.Vector(-59.5, 23, 0)),
    Part.LineSegment(App.Vector(-59.5, 23, 0), App.Vector(-59.5, 38, 0)),
    Part.LineSegment(App.Vector(-55.5, 38, 0), App.Vector(-53.5, 38, 0)),
    Part.LineSegment(App.Vector(-53.5, 38, 0), App.Vector(-53.5, 23, 0)),
    Part.LineSegment(App.Vector(-53.5, 23, 0), App.Vector(-55.5, 23, 0)),
    Part.LineSegment(App.Vector(-55.5, 23, 0), App.Vector(-55.5, 38, 0)),
    Part.LineSegment(App.Vector(-51.5, 38, 0), App.Vector(-49.5, 38, 0)),
    Part.LineSegment(App.Vector(-49.5, 38, 0), App.Vector(-49.5, 23, 0)),
    Part.LineSegment(App.Vector(-49.5, 23, 0), App.Vector(-51.5, 23, 0)),
    Part.LineSegment(App.Vector(-51.5, 23, 0), App.Vector(-51.5, 38, 0)),
], False)
sketch7.addConstraint([
    Sketcher.Constraint("Coincident", 0, 2, 1, 1),
    Sketcher.Constraint("Coincident", 1, 2, 2, 1),
    Sketcher.Constraint("Coincident", 2, 2, 3, 1),
    Sketcher.Constraint("Coincident", 3, 2, 0, 1),
    Sketcher.Constraint("Coincident", 4, 2, 5, 1),
    Sketcher.Constraint("Coincident", 5, 2, 6, 1),
    Sketcher.Constraint("Coincident", 6, 2, 7, 1),
    Sketcher.Constraint("Coincident", 7, 2, 4, 1),
    Sketcher.Constraint("Coincident", 8, 2, 9, 1),
    Sketcher.Constraint("Coincident", 9, 2, 10, 1),
    Sketcher.Constraint("Coincident", 10, 2, 11, 1),
    Sketcher.Constraint("Coincident", 11, 2, 8, 1),
    Sketcher.Constraint("Coincident", 12, 2, 13, 1),
    Sketcher.Constraint("Coincident", 13, 2, 14, 1),
    Sketcher.Constraint("Coincident", 14, 2, 15, 1),
    Sketcher.Constraint("Coincident", 15, 2, 12, 1),
    Sketcher.Constraint("Coincident", 16, 2, 17, 1),
    Sketcher.Constraint("Coincident", 17, 2, 18, 1),
    Sketcher.Constraint("Coincident", 18, 2, 19, 1),
    Sketcher.Constraint("Coincident", 19, 2, 16, 1),
    Sketcher.Constraint("Coincident", 20, 2, 21, 1),
    Sketcher.Constraint("Coincident", 21, 2, 22, 1),
    Sketcher.Constraint("Coincident", 22, 2, 23, 1),
    Sketcher.Constraint("Coincident", 23, 2, 20, 1),
    Sketcher.Constraint("Coincident", 24, 2, 25, 1),
    Sketcher.Constraint("Coincident", 25, 2, 26, 1),
    Sketcher.Constraint("Coincident", 26, 2, 27, 1),
    Sketcher.Constraint("Coincident", 27, 2, 24, 1),
    Sketcher.Constraint("Coincident", 28, 2, 29, 1),
    Sketcher.Constraint("Coincident", 29, 2, 30, 1),
    Sketcher.Constraint("Coincident", 30, 2, 31, 1),
    Sketcher.Constraint("Coincident", 31, 2, 28, 1),
    Sketcher.Constraint("Coincident", 32, 2, 33, 1),
    Sketcher.Constraint("Coincident", 33, 2, 34, 1),
    Sketcher.Constraint("Coincident", 34, 2, 35, 1),
    Sketcher.Constraint("Coincident", 35, 2, 32, 1),
    Sketcher.Constraint("Coincident", 36, 2, 37, 1),
    Sketcher.Constraint("Coincident", 37, 2, 38, 1),
    Sketcher.Constraint("Coincident", 38, 2, 39, 1),
    Sketcher.Constraint("Coincident", 39, 2, 36, 1),
    Sketcher.Constraint("Coincident", 40, 2, 41, 1),
    Sketcher.Constraint("Coincident", 41, 2, 42, 1),
    Sketcher.Constraint("Coincident", 42, 2, 43, 1),
    Sketcher.Constraint("Coincident", 43, 2, 40, 1),
    Sketcher.Constraint("Coincident", 44, 2, 45, 1),
    Sketcher.Constraint("Coincident", 45, 2, 46, 1),
    Sketcher.Constraint("Coincident", 46, 2, 47, 1),
    Sketcher.Constraint("Coincident", 47, 2, 44, 1),
    Sketcher.Constraint("Coincident", 48, 2, 49, 1),
    Sketcher.Constraint("Coincident", 49, 2, 50, 1),
    Sketcher.Constraint("Coincident", 50, 2, 51, 1),
    Sketcher.Constraint("Coincident", 51, 2, 48, 1),
    Sketcher.Constraint("Coincident", 52, 2, 53, 1),
    Sketcher.Constraint("Coincident", 53, 2, 54, 1),
    Sketcher.Constraint("Coincident", 54, 2, 55, 1),
    Sketcher.Constraint("Coincident", 55, 2, 52, 1),
    Sketcher.Constraint("Coincident", 56, 2, 57, 1),
    Sketcher.Constraint("Coincident", 57, 2, 58, 1),
    Sketcher.Constraint("Coincident", 58, 2, 59, 1),
    Sketcher.Constraint("Coincident", 59, 2, 56, 1),
    Sketcher.Constraint("Coincident", 60, 2, 61, 1),
    Sketcher.Constraint("Coincident", 61, 2, 62, 1),
    Sketcher.Constraint("Coincident", 62, 2, 63, 1),
    Sketcher.Constraint("Coincident", 63, 2, 60, 1),
    Sketcher.Constraint("Coincident", 64, 2, 65, 1),
    Sketcher.Constraint("Coincident", 65, 2, 66, 1),
    Sketcher.Constraint("Coincident", 66, 2, 67, 1),
    Sketcher.Constraint("Coincident", 67, 2, 64, 1),
    Sketcher.Constraint("Coincident", 68, 2, 69, 1),
    Sketcher.Constraint("Coincident", 69, 2, 70, 1),
    Sketcher.Constraint("Coincident", 70, 2, 71, 1),
    Sketcher.Constraint("Coincident", 71, 2, 68, 1),
    Sketcher.Constraint("Coincident", 72, 2, 73, 1),
    Sketcher.Constraint("Coincident", 73, 2, 74, 1),
    Sketcher.Constraint("Coincident", 74, 2, 75, 1),
    Sketcher.Constraint("Coincident", 75, 2, 72, 1),
    Sketcher.Constraint("Horizontal", 0),
    Sketcher.Constraint("Vertical", 1),
    Sketcher.Constraint("Horizontal", 2),
    Sketcher.Constraint("Vertical", 3),
    Sketcher.Constraint("Horizontal", 4),
    Sketcher.Constraint("Vertical", 5),
    Sketcher.Constraint("Horizontal", 6),
    Sketcher.Constraint("Vertical", 7),
    Sketcher.Constraint("Horizontal", 8),
    Sketcher.Constraint("Vertical", 9),
    Sketcher.Constraint("Horizontal", 10),
    Sketcher.Constraint("Vertical", 11),
    Sketcher.Constraint("Horizontal", 12),
    Sketcher.Constraint("Vertical", 13),
    Sketcher.Constraint("Horizontal", 14),
    Sketcher.Constraint("Vertical", 15),
    Sketcher.Constraint("Horizontal", 16),
    Sketcher.Constraint("Vertical", 17),
    Sketcher.Constraint("Horizontal", 18),
    Sketcher.Constraint("Vertical", 19),
    Sketcher.Constraint("Horizontal", 20),
    Sketcher.Constraint("Vertical", 21),
    Sketcher.Constraint("Horizontal", 22),
    Sketcher.Constraint("Vertical", 23),
    Sketcher.Constraint("Horizontal", 24),
    Sketcher.Constraint("Vertical", 25),
    Sketcher.Constraint("Horizontal", 26),
    Sketcher.Constraint("Vertical", 27),
    Sketcher.Constraint("Horizontal", 28),
    Sketcher.Constraint("Vertical", 29),
    Sketcher.Constraint("Horizontal", 30),
    Sketcher.Constraint("Vertical", 31),
    Sketcher.Constraint("Horizontal", 32),
    Sketcher.Constraint("Vertical", 33),
    Sketcher.Constraint("Horizontal", 34),
    Sketcher.Constraint("Vertical", 35),
    Sketcher.Constraint("Horizontal", 36),
    Sketcher.Constraint("Vertical", 37),
    Sketcher.Constraint("Horizontal", 38),
    Sketcher.Constraint("Vertical", 39),
    Sketcher.Constraint("Horizontal", 40),
    Sketcher.Constraint("Vertical", 41),
    Sketcher.Constraint("Horizontal", 42),
    Sketcher.Constraint("Vertical", 43),
    Sketcher.Constraint("Horizontal", 44),
    Sketcher.Constraint("Vertical", 45),
    Sketcher.Constraint("Horizontal", 46),
    Sketcher.Constraint("Vertical", 47),
    Sketcher.Constraint("Horizontal", 48),
    Sketcher.Constraint("Vertical", 49),
    Sketcher.Constraint("Horizontal", 50),
    Sketcher.Constraint("Vertical", 51),
    Sketcher.Constraint("Horizontal", 52),
    Sketcher.Constraint("Vertical", 53),
    Sketcher.Constraint("Horizontal", 54),
    Sketcher.Constraint("Vertical", 55),
    Sketcher.Constraint("Horizontal", 56),
    Sketcher.Constraint("Vertical", 57),
    Sketcher.Constraint("Horizontal", 58),
    Sketcher.Constraint("Vertical", 59),
    Sketcher.Constraint("Horizontal", 60),
    Sketcher.Constraint("Vertical", 61),
    Sketcher.Constraint("Horizontal", 62),
    Sketcher.Constraint("Vertical", 63),
    Sketcher.Constraint("Horizontal", 64),
    Sketcher.Constraint("Vertical", 65),
    Sketcher.Constraint("Horizontal", 66),
    Sketcher.Constraint("Vertical", 67),
    Sketcher.Constraint("Horizontal", 68),
    Sketcher.Constraint("Vertical", 69),
    Sketcher.Constraint("Horizontal", 70),
    Sketcher.Constraint("Vertical", 71),
    Sketcher.Constraint("Horizontal", 72),
    Sketcher.Constraint("Vertical", 73),
    Sketcher.Constraint("Horizontal", 74),
    Sketcher.Constraint("Vertical", 75),
    Sketcher.Constraint("Horizontal", 3, 2, 4, 2),
    Sketcher.Constraint("Horizontal", 2, 2, 5, 2),
    Sketcher.Constraint("Horizontal", 7, 2, 8, 2),
    Sketcher.Constraint("Horizontal", 6, 2, 9, 2),
    Sketcher.Constraint("Horizontal", 11, 2, 12, 2),
    Sketcher.Constraint("Horizontal", 10, 2, 13, 2),
    Sketcher.Constraint("Horizontal", 15, 2, 16, 2),
    Sketcher.Constraint("Horizontal", 14, 2, 17, 2),
    Sketcher.Constraint("Horizontal", 19, 2, 20, 2),
    Sketcher.Constraint("Horizontal", 18, 2, 21, 2),
    Sketcher.Constraint("Horizontal", 23, 2, 24, 2),
    Sketcher.Constraint("Horizontal", 22, 2, 25, 2),
    Sketcher.Constraint("Horizontal", 27, 2, 28, 2),
    Sketcher.Constraint("Horizontal", 26, 2, 29, 2),
    Sketcher.Constraint("Horizontal", 31, 2, 32, 2),
    Sketcher.Constraint("Horizontal", 30, 2, 33, 2),
    Sketcher.Constraint("Horizontal", 35, 2, 36, 2),
    Sketcher.Constraint("Horizontal", 34, 2, 37, 2),
    Sketcher.Constraint("Horizontal", 39, 2, 40, 2),
    Sketcher.Constraint("Horizontal", 38, 2, 41, 2),
    Sketcher.Constraint("Horizontal", 43, 2, 44, 2),
    Sketcher.Constraint("Horizontal", 42, 2, 45, 2),
    Sketcher.Constraint("Horizontal", 47, 2, 48, 2),
    Sketcher.Constraint("Horizontal", 46, 2, 49, 2),
    Sketcher.Constraint("Horizontal", 51, 2, 52, 2),
    Sketcher.Constraint("Horizontal", 50, 2, 53, 2),
    Sketcher.Constraint("Horizontal", 55, 2, 56, 2),
    Sketcher.Constraint("Horizontal", 54, 2, 57, 2),
    Sketcher.Constraint("Horizontal", 59, 2, 60, 2),
    Sketcher.Constraint("Horizontal", 58, 2, 61, 2),
    Sketcher.Constraint("Horizontal", 63, 2, 64, 2),
    Sketcher.Constraint("Horizontal", 62, 2, 65, 2),
    Sketcher.Constraint("Horizontal", 67, 2, 68, 2),
    Sketcher.Constraint("Horizontal", 66, 2, 69, 2),
    Sketcher.Constraint("Horizontal", 71, 2, 72, 2),
    Sketcher.Constraint("Horizontal", 70, 2, 73, 2),
    Sketcher.Constraint("Equal", 2, 4),
    Sketcher.Constraint("Equal", 6, 8),
    Sketcher.Constraint("Equal", 10, 12),
    Sketcher.Constraint("Equal", 14, 16),
    Sketcher.Constraint("Equal", 18, 20),
    Sketcher.Constraint("Equal", 22, 24),
    Sketcher.Constraint("Equal", 26, 28),
    Sketcher.Constraint("Equal", 30, 32),
    Sketcher.Constraint("Equal", 34, 36),
    Sketcher.Constraint("Equal", 38, 40),
    Sketcher.Constraint("Equal", 42, 44),
    Sketcher.Constraint("Equal", 46, 48),
    Sketcher.Constraint("Equal", 50, 52),
    Sketcher.Constraint("Equal", 54, 56),
    Sketcher.Constraint("Equal", 58, 60),
    Sketcher.Constraint("Equal", 62, 64),
    Sketcher.Constraint("Equal", 66, 68),
    Sketcher.Constraint("Equal", 70, 72),
    Sketcher.Constraint("DistanceX", 0, 1, 0, 2, 2.0),
    Sketcher.Constraint("DistanceY", 1, 2, 1, 1, 15.0),
    Sketcher.Constraint("DistanceY", -1, 1, 0, 2, 38.0),
    Sketcher.Constraint("DistanceX", 0, 2, -1, 1, 13.5),
    Sketcher.Constraint("DistanceX", 4, 2, -1, 1, 17.5),
    Sketcher.Constraint("DistanceX", 8, 2, -1, 1, 21.5),
    Sketcher.Constraint("DistanceX", 12, 2, -1, 1, 25.5),
    Sketcher.Constraint("DistanceX", 16, 2, -1, 1, 29.5),
    Sketcher.Constraint("DistanceX", 20, 2, -1, 1, 33.5),
    Sketcher.Constraint("DistanceX", 24, 2, -1, 1, 37.5),
    Sketcher.Constraint("DistanceX", 28, 2, -1, 1, 41.5),
    Sketcher.Constraint("DistanceX", 32, 2, -1, 1, 45.5),
    Sketcher.Constraint("DistanceX", 36, 2, -1, 1, 85.5),
    Sketcher.Constraint("DistanceX", 40, 2, -1, 1, 81.5),
    Sketcher.Constraint("DistanceX", 44, 2, -1, 1, 77.5),
    Sketcher.Constraint("DistanceX", 48, 2, -1, 1, 73.5),
    Sketcher.Constraint("DistanceX", 52, 2, -1, 1, 69.5),
    Sketcher.Constraint("DistanceX", 56, 2, -1, 1, 65.5),
    Sketcher.Constraint("DistanceX", 60, 2, -1, 1, 61.5),
    Sketcher.Constraint("DistanceX", 64, 2, -1, 1, 57.5),
    Sketcher.Constraint("DistanceX", 68, 2, -1, 1, 53.5),
    Sketcher.Constraint("DistanceX", 72, 2, -1, 1, 49.5),
])
sketch7.setExpression("Constraints[206]", "Params.sketch7_width")
sketch7.setExpression("Constraints[207]", "Params.sketch7_height")
pocket6 = body.newObject("PartDesign::Pocket", "Pocket005")
pocket6.Profile = sketch7
pocket6.setExpression("Length", "Params.pocket6_length")
pocket6.Reversed = True

sketch8 = body.newObject("Sketcher::SketchObject", "Sketch007")
sketch8.AttachmentSupport = (doc.getObject("XY_Plane"), [""])
sketch8.MapMode = "FlatFace"
sketch8.AttachmentOffset = App.Placement(App.Vector(0, 0, 19), App.Rotation())
sketch8.addGeometry([
    Part.LineSegment(App.Vector(78.1, -93, 0), App.Vector(78.1, -8, 0)),
    Part.ArcOfCircle(Part.Circle(App.Vector(75.5, -8, 0), App.Vector(0, 0, 1), 2.6), math.radians(0), math.radians(180)),
    Part.LineSegment(App.Vector(72.9, -8, 0), App.Vector(72.9, -93, 0)),
    Part.ArcOfCircle(Part.Circle(App.Vector(75.5, -93, 0), App.Vector(0, 0, 1), 2.6), math.radians(180), math.radians(360)),
    Part.LineSegment(App.Vector(8.1, -93, 0), App.Vector(8.1, -8, 0)),
    Part.ArcOfCircle(Part.Circle(App.Vector(5.5, -8, 0), App.Vector(0, 0, 1), 2.6), math.radians(0), math.radians(180)),
    Part.LineSegment(App.Vector(2.9, -8, 0), App.Vector(2.9, -93, 0)),
    Part.ArcOfCircle(Part.Circle(App.Vector(5.5, -93, 0), App.Vector(0, 0, 1), 2.6), math.radians(180), math.radians(360)),
], False)
sketch8.addConstraint([
    Sketcher.Constraint("Tangent", 0, 2, 1, 1),
    Sketcher.Constraint("Tangent", 1, 2, 2, 1),
    Sketcher.Constraint("Tangent", 2, 2, 3, 1),
    Sketcher.Constraint("Tangent", 3, 2, 0, 1),
    Sketcher.Constraint("Tangent", 4, 2, 5, 1),
    Sketcher.Constraint("Tangent", 5, 2, 6, 1),
    Sketcher.Constraint("Tangent", 6, 2, 7, 1),
    Sketcher.Constraint("Tangent", 7, 2, 4, 1),
    Sketcher.Constraint("Vertical", 0),
    Sketcher.Constraint("Vertical", 2),
    Sketcher.Constraint("Vertical", 4),
    Sketcher.Constraint("Vertical", 6),
    Sketcher.Constraint("Equal", 3, 5),
    Sketcher.Constraint("Horizontal", 1, 3, 5, 3),
    Sketcher.Constraint("Horizontal", 3, 3, 7, 3),
    Sketcher.Constraint("Radius", 1, 2.6),
    Sketcher.Constraint("DistanceY", 0, 1, 0, 2, 85.0),
    Sketcher.Constraint("DistanceY", 1, 3, -1, 1, 8.0),
    Sketcher.Constraint("DistanceX", 5, 3, 1, 3, 70.0),
    Sketcher.Constraint("DistanceX", -1, 1, 1, 3, 75.5),
])
sketch8.setExpression("Constraints[15]", "Params.sketch8_radius")
sketch8.setExpression("Constraints[16]", "Params.sketch8_height")
pocket7 = body.newObject("PartDesign::Pocket", "Pocket006")
pocket7.Profile = sketch8
pocket7.setExpression("Length", "Params.pocket7_length")
doc.recompute()

fillet = body.newObject("PartDesign::Fillet", "Fillet")
fillet.Base = (pocket7, edges_at(pocket7, [(17.5, -101, 44)]))
fillet.setExpression("Radius", "Params.fillet_radius")
doc.recompute()

fillet2 = body.newObject("PartDesign::Fillet", "Fillet001")
fillet2.Base = (fillet, edges_at(fillet, [(11, -101, 28.5)]))
fillet2.setExpression("Radius", "Params.fillet2_radius")
doc.recompute()

fillet3 = body.newObject("PartDesign::Fillet", "Fillet002")
fillet3.Base = (fillet2, edges_at(fillet2, [(0, -101, 9.5), (6, -101, 19)]))
fillet3.setExpression("Radius", "Params.fillet3_radius")
doc.recompute()

fillet4 = body.newObject("PartDesign::Fillet", "Fillet003")
fillet4.Base = (fillet3, edges_at(fillet3, [
    (0, 0, 9.5),
    (11, 0, 28.5),
    (17.5, 0, 44),
    (5.5, 0, 19),
]))
fillet4.setExpression("Radius", "Params.fillet4_radius")
doc.recompute()

fillet5 = body.newObject("PartDesign::Fillet", "Fillet004")
fillet5.Base = (fillet4, edges_at(fillet4, [
    (63.5, -101, 44),
    (66.75, -101, 38),
    (70, -101, 28.5),
    (75.5, -101, 19),
    (81, -101, 9.5),
]))
fillet5.setExpression("Radius", "Params.fillet5_radius")
doc.recompute()

fillet6 = body.newObject("PartDesign::Fillet", "Fillet005")
fillet6.Base = (fillet5, edges_at(fillet5, [
    (81, 0, 9.5),
    (75.5, 0, 19),
    (70, 0, 28.5),
    (66.75, 0, 38),
    (63.5, 0, 44),
]))
fillet6.setExpression("Radius", "Params.fillet6_radius")

doc.recompute()
